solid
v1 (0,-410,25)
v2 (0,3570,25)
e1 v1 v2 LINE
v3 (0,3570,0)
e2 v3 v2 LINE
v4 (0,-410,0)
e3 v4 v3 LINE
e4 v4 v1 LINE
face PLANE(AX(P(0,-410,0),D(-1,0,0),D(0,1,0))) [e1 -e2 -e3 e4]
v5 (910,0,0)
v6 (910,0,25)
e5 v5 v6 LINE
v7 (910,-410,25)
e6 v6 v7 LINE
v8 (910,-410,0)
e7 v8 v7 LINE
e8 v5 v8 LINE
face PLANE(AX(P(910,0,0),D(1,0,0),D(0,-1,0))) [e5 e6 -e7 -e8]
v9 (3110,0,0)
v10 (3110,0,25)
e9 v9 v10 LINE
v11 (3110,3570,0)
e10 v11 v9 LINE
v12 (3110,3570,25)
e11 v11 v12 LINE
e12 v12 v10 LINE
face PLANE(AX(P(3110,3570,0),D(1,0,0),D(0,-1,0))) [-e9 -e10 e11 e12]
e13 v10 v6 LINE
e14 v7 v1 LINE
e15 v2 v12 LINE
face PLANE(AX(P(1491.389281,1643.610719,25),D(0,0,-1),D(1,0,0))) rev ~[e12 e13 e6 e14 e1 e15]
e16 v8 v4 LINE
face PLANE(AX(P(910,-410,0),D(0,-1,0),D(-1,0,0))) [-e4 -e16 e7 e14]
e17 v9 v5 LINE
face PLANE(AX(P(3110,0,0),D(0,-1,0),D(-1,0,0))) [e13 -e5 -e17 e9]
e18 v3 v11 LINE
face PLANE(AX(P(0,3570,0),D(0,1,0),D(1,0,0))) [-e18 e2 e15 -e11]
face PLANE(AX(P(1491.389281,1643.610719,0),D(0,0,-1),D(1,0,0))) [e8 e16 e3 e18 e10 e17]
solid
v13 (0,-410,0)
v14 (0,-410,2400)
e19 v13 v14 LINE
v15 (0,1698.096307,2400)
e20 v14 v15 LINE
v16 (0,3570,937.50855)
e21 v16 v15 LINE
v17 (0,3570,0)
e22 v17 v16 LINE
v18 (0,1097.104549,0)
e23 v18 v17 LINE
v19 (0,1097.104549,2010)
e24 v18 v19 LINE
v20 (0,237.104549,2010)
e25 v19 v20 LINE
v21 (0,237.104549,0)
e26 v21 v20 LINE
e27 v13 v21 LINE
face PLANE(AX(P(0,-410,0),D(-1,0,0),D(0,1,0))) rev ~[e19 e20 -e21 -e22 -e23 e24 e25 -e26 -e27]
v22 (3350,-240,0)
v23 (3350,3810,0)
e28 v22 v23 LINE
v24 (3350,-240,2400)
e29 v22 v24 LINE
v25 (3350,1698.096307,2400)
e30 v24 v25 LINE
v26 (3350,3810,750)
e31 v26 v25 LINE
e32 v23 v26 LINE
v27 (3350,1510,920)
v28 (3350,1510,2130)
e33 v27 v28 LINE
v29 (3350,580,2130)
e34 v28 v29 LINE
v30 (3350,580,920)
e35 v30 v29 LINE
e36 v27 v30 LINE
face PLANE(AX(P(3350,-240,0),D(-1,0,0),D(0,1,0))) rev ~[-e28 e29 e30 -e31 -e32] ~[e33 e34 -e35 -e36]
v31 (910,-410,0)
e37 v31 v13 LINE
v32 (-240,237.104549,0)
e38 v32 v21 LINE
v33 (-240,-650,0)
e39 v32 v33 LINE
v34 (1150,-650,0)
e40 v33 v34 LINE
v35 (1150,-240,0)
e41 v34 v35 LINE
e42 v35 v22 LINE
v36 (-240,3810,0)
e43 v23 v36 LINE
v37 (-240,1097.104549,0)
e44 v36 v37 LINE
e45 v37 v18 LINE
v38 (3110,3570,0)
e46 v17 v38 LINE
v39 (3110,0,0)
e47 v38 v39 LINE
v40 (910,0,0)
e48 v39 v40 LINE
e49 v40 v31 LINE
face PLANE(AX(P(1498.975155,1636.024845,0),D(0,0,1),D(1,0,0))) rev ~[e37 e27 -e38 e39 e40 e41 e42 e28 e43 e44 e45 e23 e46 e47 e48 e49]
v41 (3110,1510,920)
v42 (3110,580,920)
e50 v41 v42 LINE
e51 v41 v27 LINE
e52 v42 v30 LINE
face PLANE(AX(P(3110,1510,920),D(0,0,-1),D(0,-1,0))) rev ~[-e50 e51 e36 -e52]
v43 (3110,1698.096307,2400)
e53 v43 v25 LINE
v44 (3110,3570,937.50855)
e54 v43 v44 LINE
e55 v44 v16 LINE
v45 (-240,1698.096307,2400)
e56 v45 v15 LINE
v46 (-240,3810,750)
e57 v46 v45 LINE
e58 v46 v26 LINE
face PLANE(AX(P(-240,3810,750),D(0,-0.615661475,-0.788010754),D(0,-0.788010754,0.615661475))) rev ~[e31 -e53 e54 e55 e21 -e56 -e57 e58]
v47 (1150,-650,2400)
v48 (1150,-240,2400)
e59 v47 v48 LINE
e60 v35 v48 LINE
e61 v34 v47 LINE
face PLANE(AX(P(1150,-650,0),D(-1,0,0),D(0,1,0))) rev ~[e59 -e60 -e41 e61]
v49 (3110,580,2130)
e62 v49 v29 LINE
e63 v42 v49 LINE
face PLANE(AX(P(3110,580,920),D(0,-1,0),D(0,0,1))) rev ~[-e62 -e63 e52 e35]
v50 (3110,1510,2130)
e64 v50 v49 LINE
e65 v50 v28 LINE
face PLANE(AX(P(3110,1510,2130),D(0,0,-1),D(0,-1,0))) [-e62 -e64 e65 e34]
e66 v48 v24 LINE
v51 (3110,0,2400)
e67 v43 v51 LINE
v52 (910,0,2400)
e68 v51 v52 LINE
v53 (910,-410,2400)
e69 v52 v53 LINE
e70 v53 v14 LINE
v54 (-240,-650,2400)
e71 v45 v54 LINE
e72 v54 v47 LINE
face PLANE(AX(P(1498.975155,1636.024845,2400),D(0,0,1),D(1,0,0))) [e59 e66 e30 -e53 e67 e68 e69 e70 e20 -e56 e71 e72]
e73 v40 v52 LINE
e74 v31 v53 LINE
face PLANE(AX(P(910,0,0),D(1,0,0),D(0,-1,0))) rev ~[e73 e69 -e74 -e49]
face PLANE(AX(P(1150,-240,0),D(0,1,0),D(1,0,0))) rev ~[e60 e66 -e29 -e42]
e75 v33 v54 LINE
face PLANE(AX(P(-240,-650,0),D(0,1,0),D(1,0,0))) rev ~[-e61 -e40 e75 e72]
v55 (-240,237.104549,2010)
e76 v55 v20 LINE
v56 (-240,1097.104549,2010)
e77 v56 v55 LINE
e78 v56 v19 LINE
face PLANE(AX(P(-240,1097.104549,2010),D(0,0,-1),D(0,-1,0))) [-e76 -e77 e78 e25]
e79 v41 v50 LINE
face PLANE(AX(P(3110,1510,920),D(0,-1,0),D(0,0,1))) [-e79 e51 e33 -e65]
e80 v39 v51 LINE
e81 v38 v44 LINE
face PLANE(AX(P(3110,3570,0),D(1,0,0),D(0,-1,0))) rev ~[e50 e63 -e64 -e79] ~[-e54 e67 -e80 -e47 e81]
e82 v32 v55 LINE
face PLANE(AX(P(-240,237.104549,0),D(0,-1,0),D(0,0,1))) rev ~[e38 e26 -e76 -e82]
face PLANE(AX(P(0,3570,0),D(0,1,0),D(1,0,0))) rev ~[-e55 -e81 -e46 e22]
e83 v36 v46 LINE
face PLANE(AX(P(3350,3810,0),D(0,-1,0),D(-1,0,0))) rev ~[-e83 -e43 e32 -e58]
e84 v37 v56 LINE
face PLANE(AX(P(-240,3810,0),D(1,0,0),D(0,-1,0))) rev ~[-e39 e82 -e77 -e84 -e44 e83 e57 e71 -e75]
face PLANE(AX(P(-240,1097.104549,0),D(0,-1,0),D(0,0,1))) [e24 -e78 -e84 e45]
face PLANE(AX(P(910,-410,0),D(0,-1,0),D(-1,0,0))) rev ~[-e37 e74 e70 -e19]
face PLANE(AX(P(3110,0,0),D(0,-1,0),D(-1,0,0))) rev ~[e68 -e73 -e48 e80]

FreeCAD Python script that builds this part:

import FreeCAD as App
import Part
import Sketcher

V = App.Vector
Q = App.Units.Quantity

doc = App.newDocument("Part")
body = doc.addObject("PartDesign::Body", "Body")

# Sketch on XY plane
sketch1 = body.newObject("Sketcher::SketchObject", "Sketch")
sketch1.AttachmentSupport = (doc.getObject("XY_Plane"), [""])
sketch1.MapMode = "FlatFace"
sketch1.addGeometry(Part.LineSegment(V(-240, 3810, 0), V(-240, -650, 0)), False)
sketch1.addGeometry(Part.LineSegment(V(-240, -650, 0), V(1150, -650, 0)), False)
sketch1.addGeometry(Part.LineSegment(V(1150, -650, 0), V(1150, -240, 0)), False)
sketch1.addGeometry(Part.LineSegment(V(1150, -240, 0), V(3350, -240, 0)), False)
sketch1.addGeometry(Part.LineSegment(V(3350, -240, 0), V(3350, 3810, 0)), False)
sketch1.addGeometry(Part.LineSegment(V(3350, 3810, 0), V(-240, 3810, 0)), False)
sketch1.addGeometry(Part.LineSegment(V(3110, 3570, 0), V(3110, 0, 0)), False)
sketch1.addGeometry(Part.LineSegment(V(3110, 0, 0), V(910, 0, 0)), False)
sketch1.addGeometry(Part.LineSegment(V(910, 0, 0), V(910, -410, 0)), False)
sketch1.addGeometry(Part.LineSegment(V(910, -410, 0), V(0, -410, 0)), False)
sketch1.addGeometry(Part.LineSegment(V(0, -410, 0), V(0, 3570, 0)), False)
sketch1.addGeometry(Part.LineSegment(V(0, 3570, 0), V(3110, 3570, 0)), False)
sketch1.addConstraint(Sketcher.Constraint("Coincident", 0, 2, 1, 1))
sketch1.addConstraint(Sketcher.Constraint("Coincident", 1, 2, 2, 1))
sketch1.addConstraint(Sketcher.Constraint("Coincident", 2, 2, 3, 1))
sketch1.addConstraint(Sketcher.Constraint("Coincident", 3, 2, 4, 1))
sketch1.addConstraint(Sketcher.Constraint("Coincident", 4, 2, 5, 1))
sketch1.addConstraint(Sketcher.Constraint("Coincident", 5, 2, 0, 1))
sketch1.addConstraint(Sketcher.Constraint("Coincident", 6, 2, 7, 1))
sketch1.addConstraint(Sketcher.Constraint("Coincident", 7, 2, 8, 1))
sketch1.addConstraint(Sketcher.Constraint("Coincident", 8, 2, 9, 1))
sketch1.addConstraint(Sketcher.Constraint("Coincident", 9, 2, 10, 1))
sketch1.addConstraint(Sketcher.Constraint("Coincident", 10, 2, 11, 1))
sketch1.addConstraint(Sketcher.Constraint("Coincident", 11, 2, 6, 1))
sketch1.addConstraint(Sketcher.Constraint("Vertical", 0))
sketch1.addConstraint(Sketcher.Constraint("Horizontal", 1))
sketch1.addConstraint(Sketcher.Constraint("Vertical", 2))
sketch1.addConstraint(Sketcher.Constraint("Horizontal", 3))
sketch1.addConstraint(Sketcher.Constraint("Vertical", 4))
sketch1.addConstraint(Sketcher.Constraint("Horizontal", 5))
sketch1.addConstraint(Sketcher.Constraint("Vertical", 6))
sketch1.addConstraint(Sketcher.Constraint("Horizontal", 7))
sketch1.addConstraint(Sketcher.Constraint("Vertical", 8))
sketch1.addConstraint(Sketcher.Constraint("Horizontal", 9))
sketch1.addConstraint(Sketcher.Constraint("Vertical", 10))
sketch1.addConstraint(Sketcher.Constraint("Horizontal", 11))
sketch1.addConstraint(Sketcher.Constraint("PointOnObject", 6, 2, -1))
sketch1.addConstraint(Sketcher.Constraint("PointOnObject", 9, 2, -2))
sketch1.addConstraint(Sketcher.Constraint("Equal", 3, 7))
sketch1.addConstraint(Sketcher.Constraint("Equal", 2, 8))
sketch1.addConstraint(Sketcher.Constraint("DistanceX", 1, 1, 1, 2, Q("1390 mm")))
sketch1.addConstraint(Sketcher.Constraint("DistanceX", 3, 1, 3, 2, Q("2200 mm")))
sketch1.addConstraint(Sketcher.Constraint("DistanceX", 9, 2, 9, 1, Q("910 mm")))
sketch1.addConstraint(Sketcher.Constraint("DistanceY", 0, 2, 0, 1, Q("4460 mm")))
sketch1.addConstraint(Sketcher.Constraint("DistanceY", 2, 1, 2, 2, Q("410 mm")))
sketch1.addConstraint(Sketcher.Constraint("DistanceY", 6, 2, 6, 1, Q("3570 mm")))
sketch1.addConstraint(Sketcher.Constraint("DistanceX", 0, 2, -1, 1, Q("240 mm")))
sketch1.addConstraint(Sketcher.Constraint("DistanceY", 0, 2, -1, 1, Q("650 mm")))
pad1 = body.newObject("PartDesign::Pad", "Pad")
pad1.Profile = sketch1
pad1.Length = 2400

# Sketch on YZ plane
sketch2 = body.newObject("Sketcher::SketchObject", "Sketch001")
sketch2.AttachmentSupport = (doc.getObject("YZ_Plane"), [""])
sketch2.MapMode = "FlatFace"
sketch2.AttachmentOffset = App.Placement(V(0, 0, -240), App.Rotation())
sketch2.addGeometry(Part.LineSegment(V(1097, 2010, 0), V(1097, 0, 0)), False)
sketch2.addGeometry(Part.LineSegment(V(1097, 0, 0), V(237, 0, 0)), False)
sketch2.addGeometry(Part.LineSegment(V(237, 0, 0), V(237, 2010, 0)), False)
sketch2.addGeometry(Part.LineSegment(V(237, 2010, 0), V(1097, 2010, 0)), False)
sketch2.addConstraint(Sketcher.Constraint("Coincident", 0, 2, 1, 1))
sketch2.addConstraint(Sketcher.Constraint("Coincident", 1, 2, 2, 1))
sketch2.addConstraint(Sketcher.Constraint("Coincident", 2, 2, 3, 1))
sketch2.addConstraint(Sketcher.Constraint("Coincident", 3, 2, 0, 1))
sketch2.addConstraint(Sketcher.Constraint("Vertical", 0))
sketch2.addConstraint(Sketcher.Constraint("Horizontal", 1))
sketch2.addConstraint(Sketcher.Constraint("Vertical", 2))
sketch2.addConstraint(Sketcher.Constraint("Horizontal", 3))
sketch2.addConstraint(Sketcher.Constraint("PointOnObject", 0, 2, -1))
sketch2.addConstraint(Sketcher.Constraint("DistanceX", 1, 2, 1, 1, Q("860 mm")))
sketch2.addConstraint(Sketcher.Constraint("DistanceY", 0, 2, 0, 1, Q("2010 mm")))
sketch2.addConstraint(Sketcher.Constraint("DistanceX", -1, 1, 0, 2, Q("1097.104549 mm")))
pocket1 = body.newObject("PartDesign::Pocket", "Pocket")
pocket1.Profile = sketch2
pocket1.Length = 240
pocket1.Reversed = True

# Sketch on YZ plane
sketch3 = body.newObject("Sketcher::SketchObject", "Sketch002")
sketch3.AttachmentSupport = (doc.getObject("YZ_Plane"), [""])
sketch3.MapMode = "FlatFace"
sketch3.AttachmentOffset = App.Placement(V(0, 0, -240), App.Rotation())
sketch3.addGeometry(Part.LineSegment(V(3810, 2400, 0), V(3810, 750, 0)), False)
sketch3.addGeometry(Part.LineSegment(V(3810, 750, 0), V(1698, 2400, 0)), False)
sketch3.addGeometry(Part.LineSegment(V(1698, 2400, 0), V(3810, 2400, 0)), False)
sketch3.addConstraint(Sketcher.Constraint("Coincident", 0, 2, 1, 1))
sketch3.addConstraint(Sketcher.Constraint("Coincident", 1, 2, 2, 1))
sketch3.addConstraint(Sketcher.Constraint("Coincident", 2, 2, 0, 1))
sketch3.addConstraint(Sketcher.Constraint("Vertical", 0))
sketch3.addConstraint(Sketcher.Constraint("Horizontal", 2))
sketch3.addConstraint(Sketcher.Constraint("DistanceY", 0, 2, 0, 1, Q("1650 mm")))
sketch3.addConstraint(Sketcher.Constraint("Angle", 1, Q("142 deg")))
sketch3.addConstraint(Sketcher.Constraint("DistanceX", -1, 1, 0, 2, Q("3810 mm")))
sketch3.addConstraint(Sketcher.Constraint("DistanceY", -1, 1, 0, 2, Q("750 mm")))
pocket2 = body.newObject("PartDesign::Pocket", "Pocket001")
pocket2.Profile = sketch3
pocket2.Type = "ThroughAll"
pocket2.Reversed = True

# Sketch on YZ plane
sketch4 = body.newObject("Sketcher::SketchObject", "Sketch003")
sketch4.AttachmentSupport = (doc.getObject("YZ_Plane"), [""])
sketch4.MapMode = "FlatFace"
sketch4.AttachmentOffset = App.Placement(V(0, 0, 3110), App.Rotation())
sketch4.addGeometry(Part.LineSegment(V(1510, 2130, 0), V(1510, 920, 0)), False)
sketch4.addGeometry(Part.LineSegment(V(1510, 920, 0), V(580, 920, 0)), False)
sketch4.addGeometry(Part.LineSegment(V(580, 920, 0), V(580, 2130, 0)), False)
sketch4.addGeometry(Part.LineSegment(V(580, 2130, 0), V(1510, 2130, 0)), False)
sketch4.addConstraint(Sketcher.Constraint("Coincident", 0, 2, 1, 1))
sketch4.addConstraint(Sketcher.Constraint("Coincident", 1, 2, 2, 1))
sketch4.addConstraint(Sketcher.Constraint("Coincident", 2, 2, 3, 1))
sketch4.addConstraint(Sketcher.Constraint("Coincident", 3, 2, 0, 1))
sketch4.addConstraint(Sketcher.Constraint("Vertical", 0))
sketch4.addConstraint(Sketcher.Constraint("Horizontal", 1))
sketch4.addConstraint(Sketcher.Constraint("Vertical", 2))
sketch4.addConstraint(Sketcher.Constraint("Horizontal", 3))
sketch4.addConstraint(Sketcher.Constraint("DistanceX", 1, 2, 1, 1, Q("930 mm")))
sketch4.addConstraint(Sketcher.Constraint("DistanceY", 0, 2, 0, 1, Q("1210 mm")))
sketch4.addConstraint(Sketcher.Constraint("DistanceX", -1, 1, 0, 2, Q("1510 mm")))
sketch4.addConstraint(Sketcher.Constraint("DistanceY", -1, 1, 0, 2, Q("920 mm")))
pocket3 = body.newObject("PartDesign::Pocket", "Pocket002")
pocket3.Profile = sketch4
pocket3.Type = "ThroughAll"
pocket3.Reversed = True
body2 = doc.addObject("PartDesign::Body", "Body001")

# Sketch on XY plane
sketch5 = body2.newObject("Sketcher::SketchObject", "Sketch004")
sketch5.AttachmentSupport = (doc.getObject("XY_Plane001"), [""])
sketch5.MapMode = "FlatFace"
sketch5.addGeometry(Part.LineSegment(V(0, 3570, 0), V(3110, 3570, 0)), False)
sketch5.addGeometry(Part.LineSegment(V(3110, 3570, 0), V(3110, 0, 0)), False)
sketch5.addGeometry(Part.LineSegment(V(3110, 0, 0), V(910, 0, 0)), False)
sketch5.addGeometry(Part.LineSegment(V(910, 0, 0), V(910, -410, 0)), False)
sketch5.addGeometry(Part.LineSegment(V(910, -410, 0), V(0, -410, 0)), False)
sketch5.addGeometry(Part.LineSegment(V(0, -410, 0), V(0, 3570, 0)), False)
sketch5.addConstraint(Sketcher.Constraint("Coincident", 0, 2, 1, 1))
sketch5.addConstraint(Sketcher.Constraint("Coincident", 1, 2, 2, 1))
sketch5.addConstraint(Sketcher.Constraint("Coincident", 2, 2, 3, 1))
sketch5.addConstraint(Sketcher.Constraint("Coincident", 3, 2, 4, 1))
sketch5.addConstraint(Sketcher.Constraint("Coincident", 4, 2, 5, 1))
sketch5.addConstraint(Sketcher.Constraint("Coincident", 5, 2, 0, 1))
sketch5.addConstraint(Sketcher.Constraint("Horizontal", 0))
sketch5.addConstraint(Sketcher.Constraint("Vertical", 1))
sketch5.addConstraint(Sketcher.Constraint("Horizontal", 2))
sketch5.addConstraint(Sketcher.Constraint("Vertical", 3))
sketch5.addConstraint(Sketcher.Constraint("Horizontal", 4))
sketch5.addConstraint(Sketcher.Constraint("Vertical", 5))
sketch5.addConstraint(Sketcher.Constraint("PointOnObject", 1, 2, -1))
sketch5.addConstraint(Sketcher.Constraint("PointOnObject", 4, 2, -2))
sketch5.addConstraint(Sketcher.Constraint("DistanceX", 0, 1, 0, 2, Q("3110 mm")))
sketch5.addConstraint(Sketcher.Constraint("DistanceX", 2, 2, 2, 1, Q("2200 mm")))
sketch5.addConstraint(Sketcher.Constraint("DistanceY", 1, 2, 1, 1, Q("3570 mm")))
sketch5.addConstraint(Sketcher.Constraint("DistanceY", 3, 2, 3, 1, Q("410 mm")))
pad2 = body2.newObject("PartDesign::Pad", "Pad001")
pad2.Profile = sketch5
pad2.Length = 25

doc.recompute()
